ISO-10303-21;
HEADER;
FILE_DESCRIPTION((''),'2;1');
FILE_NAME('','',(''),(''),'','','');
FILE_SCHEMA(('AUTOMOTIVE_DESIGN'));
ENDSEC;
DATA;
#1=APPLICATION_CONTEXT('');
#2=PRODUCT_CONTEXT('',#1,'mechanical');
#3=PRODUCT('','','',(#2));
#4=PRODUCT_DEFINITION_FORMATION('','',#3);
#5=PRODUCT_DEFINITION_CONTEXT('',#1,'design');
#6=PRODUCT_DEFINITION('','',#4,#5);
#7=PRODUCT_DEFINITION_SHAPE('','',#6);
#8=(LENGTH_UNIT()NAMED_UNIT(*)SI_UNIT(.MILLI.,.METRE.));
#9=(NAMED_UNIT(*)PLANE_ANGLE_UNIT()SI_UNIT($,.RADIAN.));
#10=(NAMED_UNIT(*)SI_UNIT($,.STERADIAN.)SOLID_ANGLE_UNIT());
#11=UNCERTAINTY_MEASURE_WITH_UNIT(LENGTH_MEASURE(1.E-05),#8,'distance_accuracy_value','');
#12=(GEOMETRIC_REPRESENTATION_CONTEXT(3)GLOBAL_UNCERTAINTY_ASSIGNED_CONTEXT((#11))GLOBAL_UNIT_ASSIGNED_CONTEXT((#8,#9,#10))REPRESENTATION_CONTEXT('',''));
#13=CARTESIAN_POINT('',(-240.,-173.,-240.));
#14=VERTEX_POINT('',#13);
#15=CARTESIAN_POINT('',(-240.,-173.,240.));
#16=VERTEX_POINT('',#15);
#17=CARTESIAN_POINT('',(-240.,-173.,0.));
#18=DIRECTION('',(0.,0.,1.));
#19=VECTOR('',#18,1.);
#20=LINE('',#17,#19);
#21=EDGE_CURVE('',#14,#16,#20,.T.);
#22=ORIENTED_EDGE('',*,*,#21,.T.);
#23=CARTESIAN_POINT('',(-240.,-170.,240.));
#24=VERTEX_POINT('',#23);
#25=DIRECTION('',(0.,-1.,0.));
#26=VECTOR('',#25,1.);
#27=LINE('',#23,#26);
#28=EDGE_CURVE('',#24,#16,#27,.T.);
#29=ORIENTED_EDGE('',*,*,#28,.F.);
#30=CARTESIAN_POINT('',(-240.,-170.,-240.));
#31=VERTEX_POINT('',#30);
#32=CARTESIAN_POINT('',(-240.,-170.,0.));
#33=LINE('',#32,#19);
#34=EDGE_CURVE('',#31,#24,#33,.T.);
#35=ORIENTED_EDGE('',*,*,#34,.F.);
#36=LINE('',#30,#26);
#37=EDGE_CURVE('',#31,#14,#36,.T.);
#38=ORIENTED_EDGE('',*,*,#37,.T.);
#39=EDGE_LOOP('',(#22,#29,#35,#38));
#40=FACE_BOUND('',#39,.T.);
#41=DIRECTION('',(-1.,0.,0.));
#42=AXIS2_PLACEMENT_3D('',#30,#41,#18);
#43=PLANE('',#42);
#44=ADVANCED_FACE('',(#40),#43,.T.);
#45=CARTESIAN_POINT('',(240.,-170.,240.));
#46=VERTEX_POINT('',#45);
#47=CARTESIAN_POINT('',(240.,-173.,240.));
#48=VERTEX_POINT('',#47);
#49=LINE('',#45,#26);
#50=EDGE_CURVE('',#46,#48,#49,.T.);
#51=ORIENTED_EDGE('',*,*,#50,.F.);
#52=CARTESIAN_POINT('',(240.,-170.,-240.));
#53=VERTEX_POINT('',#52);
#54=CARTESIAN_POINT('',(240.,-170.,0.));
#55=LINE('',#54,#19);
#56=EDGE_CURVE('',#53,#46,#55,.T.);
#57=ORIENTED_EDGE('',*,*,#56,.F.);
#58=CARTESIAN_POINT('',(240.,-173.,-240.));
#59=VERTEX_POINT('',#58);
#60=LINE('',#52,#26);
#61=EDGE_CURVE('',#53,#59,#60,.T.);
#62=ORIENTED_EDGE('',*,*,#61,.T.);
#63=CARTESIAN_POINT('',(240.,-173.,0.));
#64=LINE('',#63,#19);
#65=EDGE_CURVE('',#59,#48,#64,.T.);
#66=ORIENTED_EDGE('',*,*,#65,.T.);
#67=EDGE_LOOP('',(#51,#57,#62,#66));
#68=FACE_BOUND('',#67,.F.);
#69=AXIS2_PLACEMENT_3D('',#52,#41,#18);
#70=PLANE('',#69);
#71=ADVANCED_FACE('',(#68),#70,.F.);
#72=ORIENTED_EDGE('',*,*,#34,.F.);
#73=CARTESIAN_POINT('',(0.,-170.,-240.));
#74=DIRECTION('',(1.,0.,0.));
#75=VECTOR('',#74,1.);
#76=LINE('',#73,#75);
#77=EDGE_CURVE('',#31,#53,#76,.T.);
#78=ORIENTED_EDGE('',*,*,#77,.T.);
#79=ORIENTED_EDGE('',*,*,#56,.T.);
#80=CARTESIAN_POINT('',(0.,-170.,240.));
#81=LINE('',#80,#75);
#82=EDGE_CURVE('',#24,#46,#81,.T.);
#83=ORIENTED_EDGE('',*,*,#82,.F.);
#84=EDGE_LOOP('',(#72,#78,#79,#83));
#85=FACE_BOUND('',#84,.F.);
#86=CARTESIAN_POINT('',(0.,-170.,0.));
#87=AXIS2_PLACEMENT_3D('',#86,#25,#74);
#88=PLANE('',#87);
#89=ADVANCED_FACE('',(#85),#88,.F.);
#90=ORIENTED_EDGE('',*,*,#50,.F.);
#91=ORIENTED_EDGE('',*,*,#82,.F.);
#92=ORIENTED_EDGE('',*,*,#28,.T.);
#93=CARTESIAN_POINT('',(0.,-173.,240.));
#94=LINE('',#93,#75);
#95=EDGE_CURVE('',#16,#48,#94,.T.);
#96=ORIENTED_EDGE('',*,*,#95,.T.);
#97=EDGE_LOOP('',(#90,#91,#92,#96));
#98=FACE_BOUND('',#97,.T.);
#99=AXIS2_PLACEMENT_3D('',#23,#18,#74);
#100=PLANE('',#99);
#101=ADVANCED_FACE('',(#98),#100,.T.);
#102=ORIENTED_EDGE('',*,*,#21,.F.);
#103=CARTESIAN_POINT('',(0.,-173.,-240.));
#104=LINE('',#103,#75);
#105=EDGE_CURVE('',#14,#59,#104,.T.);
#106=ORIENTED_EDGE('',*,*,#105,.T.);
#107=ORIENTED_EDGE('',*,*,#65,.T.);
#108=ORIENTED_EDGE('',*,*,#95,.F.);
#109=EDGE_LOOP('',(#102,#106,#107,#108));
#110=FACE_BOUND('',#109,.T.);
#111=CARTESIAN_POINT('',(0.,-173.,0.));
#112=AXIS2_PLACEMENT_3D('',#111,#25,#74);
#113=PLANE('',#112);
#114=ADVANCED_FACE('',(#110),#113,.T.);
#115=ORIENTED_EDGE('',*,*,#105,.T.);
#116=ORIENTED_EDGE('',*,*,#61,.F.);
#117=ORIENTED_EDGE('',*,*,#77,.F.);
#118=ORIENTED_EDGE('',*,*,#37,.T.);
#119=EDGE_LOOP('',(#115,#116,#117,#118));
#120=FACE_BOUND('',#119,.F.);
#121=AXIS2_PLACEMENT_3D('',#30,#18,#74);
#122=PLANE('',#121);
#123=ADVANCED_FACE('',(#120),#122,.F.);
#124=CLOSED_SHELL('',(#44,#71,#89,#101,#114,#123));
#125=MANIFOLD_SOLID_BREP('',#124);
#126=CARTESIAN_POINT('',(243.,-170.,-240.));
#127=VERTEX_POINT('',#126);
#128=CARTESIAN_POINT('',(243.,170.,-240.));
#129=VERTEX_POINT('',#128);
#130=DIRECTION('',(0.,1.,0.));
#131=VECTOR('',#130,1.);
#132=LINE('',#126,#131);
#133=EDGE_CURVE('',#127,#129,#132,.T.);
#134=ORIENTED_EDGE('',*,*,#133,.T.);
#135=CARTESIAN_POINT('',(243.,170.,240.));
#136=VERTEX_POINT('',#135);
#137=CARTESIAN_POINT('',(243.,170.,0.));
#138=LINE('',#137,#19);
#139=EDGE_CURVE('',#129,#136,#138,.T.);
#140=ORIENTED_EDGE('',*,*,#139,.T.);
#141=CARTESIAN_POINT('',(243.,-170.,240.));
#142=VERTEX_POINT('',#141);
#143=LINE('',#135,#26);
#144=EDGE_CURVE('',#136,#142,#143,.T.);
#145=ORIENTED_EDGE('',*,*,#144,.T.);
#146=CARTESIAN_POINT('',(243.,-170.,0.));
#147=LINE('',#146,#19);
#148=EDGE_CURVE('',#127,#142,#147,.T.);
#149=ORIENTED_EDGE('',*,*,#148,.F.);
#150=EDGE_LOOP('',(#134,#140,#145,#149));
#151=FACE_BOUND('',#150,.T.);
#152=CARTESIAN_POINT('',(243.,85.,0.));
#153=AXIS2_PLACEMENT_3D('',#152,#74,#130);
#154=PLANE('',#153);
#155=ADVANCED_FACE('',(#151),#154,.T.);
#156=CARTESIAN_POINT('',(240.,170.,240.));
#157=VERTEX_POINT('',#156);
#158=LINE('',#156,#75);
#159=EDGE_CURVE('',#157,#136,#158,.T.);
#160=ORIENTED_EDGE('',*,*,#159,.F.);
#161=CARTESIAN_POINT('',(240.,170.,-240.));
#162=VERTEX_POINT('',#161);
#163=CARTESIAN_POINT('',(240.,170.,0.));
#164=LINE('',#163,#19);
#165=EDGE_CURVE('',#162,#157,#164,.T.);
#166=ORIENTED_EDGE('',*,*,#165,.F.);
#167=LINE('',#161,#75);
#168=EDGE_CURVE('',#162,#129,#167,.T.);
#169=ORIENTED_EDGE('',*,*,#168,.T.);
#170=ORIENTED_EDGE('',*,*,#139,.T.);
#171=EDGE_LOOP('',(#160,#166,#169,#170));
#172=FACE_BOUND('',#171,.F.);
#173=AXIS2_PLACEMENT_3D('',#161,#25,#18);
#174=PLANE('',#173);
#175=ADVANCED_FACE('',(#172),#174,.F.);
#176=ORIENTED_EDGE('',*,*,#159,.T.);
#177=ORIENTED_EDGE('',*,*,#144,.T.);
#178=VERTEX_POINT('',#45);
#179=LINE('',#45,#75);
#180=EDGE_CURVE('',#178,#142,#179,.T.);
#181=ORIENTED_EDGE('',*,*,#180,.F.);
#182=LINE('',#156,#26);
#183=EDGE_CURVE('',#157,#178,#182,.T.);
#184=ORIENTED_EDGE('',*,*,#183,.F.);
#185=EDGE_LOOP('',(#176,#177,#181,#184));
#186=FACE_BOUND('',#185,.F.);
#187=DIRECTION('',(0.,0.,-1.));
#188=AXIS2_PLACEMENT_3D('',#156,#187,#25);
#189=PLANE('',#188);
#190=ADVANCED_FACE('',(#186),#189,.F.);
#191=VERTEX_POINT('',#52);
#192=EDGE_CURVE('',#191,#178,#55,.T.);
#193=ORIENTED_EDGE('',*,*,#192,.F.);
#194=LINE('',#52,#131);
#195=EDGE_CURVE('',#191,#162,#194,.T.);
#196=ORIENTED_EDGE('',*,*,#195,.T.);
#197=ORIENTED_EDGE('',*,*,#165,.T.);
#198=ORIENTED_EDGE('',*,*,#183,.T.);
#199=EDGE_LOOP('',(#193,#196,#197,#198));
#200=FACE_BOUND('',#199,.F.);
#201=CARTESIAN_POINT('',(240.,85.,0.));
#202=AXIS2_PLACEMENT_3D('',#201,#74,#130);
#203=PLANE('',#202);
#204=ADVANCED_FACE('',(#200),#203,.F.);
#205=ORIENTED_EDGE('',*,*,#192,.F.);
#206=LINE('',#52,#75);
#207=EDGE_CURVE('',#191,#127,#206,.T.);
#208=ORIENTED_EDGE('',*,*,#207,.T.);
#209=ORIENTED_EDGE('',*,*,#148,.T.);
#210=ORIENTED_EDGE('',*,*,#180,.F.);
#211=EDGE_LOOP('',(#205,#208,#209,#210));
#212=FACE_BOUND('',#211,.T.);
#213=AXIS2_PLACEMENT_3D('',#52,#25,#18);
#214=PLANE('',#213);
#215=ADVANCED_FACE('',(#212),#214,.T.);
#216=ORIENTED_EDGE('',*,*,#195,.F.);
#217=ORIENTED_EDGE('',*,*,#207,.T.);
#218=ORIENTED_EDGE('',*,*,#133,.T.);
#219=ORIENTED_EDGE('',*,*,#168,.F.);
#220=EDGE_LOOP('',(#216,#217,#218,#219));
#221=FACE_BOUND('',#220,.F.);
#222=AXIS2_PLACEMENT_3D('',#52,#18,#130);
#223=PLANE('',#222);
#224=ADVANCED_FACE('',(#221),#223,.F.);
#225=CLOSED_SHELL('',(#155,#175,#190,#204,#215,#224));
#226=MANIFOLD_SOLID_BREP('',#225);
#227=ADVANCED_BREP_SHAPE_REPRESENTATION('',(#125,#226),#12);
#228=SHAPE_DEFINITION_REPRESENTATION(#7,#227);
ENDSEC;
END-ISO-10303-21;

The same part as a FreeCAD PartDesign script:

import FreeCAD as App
import Part
import Sketcher
Q = App.Units.Quantity

doc = App.newDocument("Part")
body = doc.addObject("PartDesign::Body", "Body")

sketch1 = body.newObject("Sketcher::SketchObject", "Sketch")
sketch1.AttachmentSupport = (doc.getObject("XZ_Plane"), [""])
sketch1.MapMode = "FlatFace"
sketch1.AttachmentOffset = App.Placement(App.Vector(0, 0, 170), App.Rotation())
sketch1.addGeometry(Part.LineSegment(App.Vector(-240, 240, 0), App.Vector(-240, -240, 0)), False)
sketch1.addGeometry(Part.LineSegment(App.Vector(-240, -240, 0), App.Vector(240, -240, 0)), False)
sketch1.addGeometry(Part.LineSegment(App.Vector(240, -240, 0), App.Vector(240, 240, 0)), False)
sketch1.addGeometry(Part.LineSegment(App.Vector(240, 240, 0), App.Vector(-240, 240, 0)), False)
sketch1.addConstraint(Sketcher.Constraint("Coincident", 0, 2, 1, 1))
sketch1.addConstraint(Sketcher.Constraint("Coincident", 1, 2, 2, 1))
sketch1.addConstraint(Sketcher.Constraint("Coincident", 2, 2, 3, 1))
sketch1.addConstraint(Sketcher.Constraint("Coincident", 3, 2, 0, 1))
sketch1.addConstraint(Sketcher.Constraint("Vertical", 0))
sketch1.addConstraint(Sketcher.Constraint("Horizontal", 1))
sketch1.addConstraint(Sketcher.Constraint("Vertical", 2))
sketch1.addConstraint(Sketcher.Constraint("Horizontal", 3))
sketch1.addConstraint(Sketcher.Constraint("Symmetric", 0, 2, 2, 2, -1, 1))
sketch1.addConstraint(Sketcher.Constraint("Equal", 3, 0))
sketch1.addConstraint(Sketcher.Constraint("DistanceX", 1, 1, 1, 2, Q("480 mm")))
pad1 = body.newObject("PartDesign::Pad", "Pad")
pad1.Profile = sketch1
pad1.Length = 3
body2 = doc.addObject("PartDesign::Body", "Body001")

sketch2 = body2.newObject("Sketcher::SketchObject", "Sketch001")
sketch2.AttachmentSupport = (doc.getObject("YZ_Plane001"), [""])
sketch2.MapMode = "FlatFace"
sketch2.AttachmentOffset = App.Placement(App.Vector(0, 0, 240), App.Rotation())
sketch2.addGeometry(Part.LineSegment(App.Vector(170, -240, 0), App.Vector(170, 240, 0)), False)
sketch2.addGeometry(Part.LineSegment(App.Vector(170, 240, 0), App.Vector(-170, 240, 0)), False)
sketch2.addGeometry(Part.LineSegment(App.Vector(-170, 240, 0), App.Vector(-170, -240, 0)), False)
sketch2.addGeometry(Part.LineSegment(App.Vector(-170, -240, 0), App.Vector(170, -240, 0)), False)
sketch2.addConstraint(Sketcher.Constraint("Coincident", 0, 2, 1, 1))
sketch2.addConstraint(Sketcher.Constraint("Coincident", 1, 2, 2, 1))
sketch2.addConstraint(Sketcher.Constraint("Coincident", 2, 2, 3, 1))
sketch2.addConstraint(Sketcher.Constraint("Coincident", 3, 2, 0, 1))
sketch2.addConstraint(Sketcher.Constraint("Vertical", 0))
sketch2.addConstraint(Sketcher.Constraint("Horizontal", 1))
sketch2.addConstraint(Sketcher.Constraint("Vertical", 2))
sketch2.addConstraint(Sketcher.Constraint("Horizontal", 3))
sketch2.addConstraint(Sketcher.Constraint("Symmetric", 0, 2, 2, 2, -1, 1))
sketch2.addConstraint(Sketcher.Constraint("DistanceX", 1, 2, 1, 1, Q("340 mm")))
sketch2.addConstraint(Sketcher.Constraint("DistanceY", 0, 1, 0, 2, Q("480 mm")))
pad2 = body2.newObject("PartDesign::Pad", "Pad001")
pad2.Profile = sketch2
pad2.Length = 3

doc.recompute()
